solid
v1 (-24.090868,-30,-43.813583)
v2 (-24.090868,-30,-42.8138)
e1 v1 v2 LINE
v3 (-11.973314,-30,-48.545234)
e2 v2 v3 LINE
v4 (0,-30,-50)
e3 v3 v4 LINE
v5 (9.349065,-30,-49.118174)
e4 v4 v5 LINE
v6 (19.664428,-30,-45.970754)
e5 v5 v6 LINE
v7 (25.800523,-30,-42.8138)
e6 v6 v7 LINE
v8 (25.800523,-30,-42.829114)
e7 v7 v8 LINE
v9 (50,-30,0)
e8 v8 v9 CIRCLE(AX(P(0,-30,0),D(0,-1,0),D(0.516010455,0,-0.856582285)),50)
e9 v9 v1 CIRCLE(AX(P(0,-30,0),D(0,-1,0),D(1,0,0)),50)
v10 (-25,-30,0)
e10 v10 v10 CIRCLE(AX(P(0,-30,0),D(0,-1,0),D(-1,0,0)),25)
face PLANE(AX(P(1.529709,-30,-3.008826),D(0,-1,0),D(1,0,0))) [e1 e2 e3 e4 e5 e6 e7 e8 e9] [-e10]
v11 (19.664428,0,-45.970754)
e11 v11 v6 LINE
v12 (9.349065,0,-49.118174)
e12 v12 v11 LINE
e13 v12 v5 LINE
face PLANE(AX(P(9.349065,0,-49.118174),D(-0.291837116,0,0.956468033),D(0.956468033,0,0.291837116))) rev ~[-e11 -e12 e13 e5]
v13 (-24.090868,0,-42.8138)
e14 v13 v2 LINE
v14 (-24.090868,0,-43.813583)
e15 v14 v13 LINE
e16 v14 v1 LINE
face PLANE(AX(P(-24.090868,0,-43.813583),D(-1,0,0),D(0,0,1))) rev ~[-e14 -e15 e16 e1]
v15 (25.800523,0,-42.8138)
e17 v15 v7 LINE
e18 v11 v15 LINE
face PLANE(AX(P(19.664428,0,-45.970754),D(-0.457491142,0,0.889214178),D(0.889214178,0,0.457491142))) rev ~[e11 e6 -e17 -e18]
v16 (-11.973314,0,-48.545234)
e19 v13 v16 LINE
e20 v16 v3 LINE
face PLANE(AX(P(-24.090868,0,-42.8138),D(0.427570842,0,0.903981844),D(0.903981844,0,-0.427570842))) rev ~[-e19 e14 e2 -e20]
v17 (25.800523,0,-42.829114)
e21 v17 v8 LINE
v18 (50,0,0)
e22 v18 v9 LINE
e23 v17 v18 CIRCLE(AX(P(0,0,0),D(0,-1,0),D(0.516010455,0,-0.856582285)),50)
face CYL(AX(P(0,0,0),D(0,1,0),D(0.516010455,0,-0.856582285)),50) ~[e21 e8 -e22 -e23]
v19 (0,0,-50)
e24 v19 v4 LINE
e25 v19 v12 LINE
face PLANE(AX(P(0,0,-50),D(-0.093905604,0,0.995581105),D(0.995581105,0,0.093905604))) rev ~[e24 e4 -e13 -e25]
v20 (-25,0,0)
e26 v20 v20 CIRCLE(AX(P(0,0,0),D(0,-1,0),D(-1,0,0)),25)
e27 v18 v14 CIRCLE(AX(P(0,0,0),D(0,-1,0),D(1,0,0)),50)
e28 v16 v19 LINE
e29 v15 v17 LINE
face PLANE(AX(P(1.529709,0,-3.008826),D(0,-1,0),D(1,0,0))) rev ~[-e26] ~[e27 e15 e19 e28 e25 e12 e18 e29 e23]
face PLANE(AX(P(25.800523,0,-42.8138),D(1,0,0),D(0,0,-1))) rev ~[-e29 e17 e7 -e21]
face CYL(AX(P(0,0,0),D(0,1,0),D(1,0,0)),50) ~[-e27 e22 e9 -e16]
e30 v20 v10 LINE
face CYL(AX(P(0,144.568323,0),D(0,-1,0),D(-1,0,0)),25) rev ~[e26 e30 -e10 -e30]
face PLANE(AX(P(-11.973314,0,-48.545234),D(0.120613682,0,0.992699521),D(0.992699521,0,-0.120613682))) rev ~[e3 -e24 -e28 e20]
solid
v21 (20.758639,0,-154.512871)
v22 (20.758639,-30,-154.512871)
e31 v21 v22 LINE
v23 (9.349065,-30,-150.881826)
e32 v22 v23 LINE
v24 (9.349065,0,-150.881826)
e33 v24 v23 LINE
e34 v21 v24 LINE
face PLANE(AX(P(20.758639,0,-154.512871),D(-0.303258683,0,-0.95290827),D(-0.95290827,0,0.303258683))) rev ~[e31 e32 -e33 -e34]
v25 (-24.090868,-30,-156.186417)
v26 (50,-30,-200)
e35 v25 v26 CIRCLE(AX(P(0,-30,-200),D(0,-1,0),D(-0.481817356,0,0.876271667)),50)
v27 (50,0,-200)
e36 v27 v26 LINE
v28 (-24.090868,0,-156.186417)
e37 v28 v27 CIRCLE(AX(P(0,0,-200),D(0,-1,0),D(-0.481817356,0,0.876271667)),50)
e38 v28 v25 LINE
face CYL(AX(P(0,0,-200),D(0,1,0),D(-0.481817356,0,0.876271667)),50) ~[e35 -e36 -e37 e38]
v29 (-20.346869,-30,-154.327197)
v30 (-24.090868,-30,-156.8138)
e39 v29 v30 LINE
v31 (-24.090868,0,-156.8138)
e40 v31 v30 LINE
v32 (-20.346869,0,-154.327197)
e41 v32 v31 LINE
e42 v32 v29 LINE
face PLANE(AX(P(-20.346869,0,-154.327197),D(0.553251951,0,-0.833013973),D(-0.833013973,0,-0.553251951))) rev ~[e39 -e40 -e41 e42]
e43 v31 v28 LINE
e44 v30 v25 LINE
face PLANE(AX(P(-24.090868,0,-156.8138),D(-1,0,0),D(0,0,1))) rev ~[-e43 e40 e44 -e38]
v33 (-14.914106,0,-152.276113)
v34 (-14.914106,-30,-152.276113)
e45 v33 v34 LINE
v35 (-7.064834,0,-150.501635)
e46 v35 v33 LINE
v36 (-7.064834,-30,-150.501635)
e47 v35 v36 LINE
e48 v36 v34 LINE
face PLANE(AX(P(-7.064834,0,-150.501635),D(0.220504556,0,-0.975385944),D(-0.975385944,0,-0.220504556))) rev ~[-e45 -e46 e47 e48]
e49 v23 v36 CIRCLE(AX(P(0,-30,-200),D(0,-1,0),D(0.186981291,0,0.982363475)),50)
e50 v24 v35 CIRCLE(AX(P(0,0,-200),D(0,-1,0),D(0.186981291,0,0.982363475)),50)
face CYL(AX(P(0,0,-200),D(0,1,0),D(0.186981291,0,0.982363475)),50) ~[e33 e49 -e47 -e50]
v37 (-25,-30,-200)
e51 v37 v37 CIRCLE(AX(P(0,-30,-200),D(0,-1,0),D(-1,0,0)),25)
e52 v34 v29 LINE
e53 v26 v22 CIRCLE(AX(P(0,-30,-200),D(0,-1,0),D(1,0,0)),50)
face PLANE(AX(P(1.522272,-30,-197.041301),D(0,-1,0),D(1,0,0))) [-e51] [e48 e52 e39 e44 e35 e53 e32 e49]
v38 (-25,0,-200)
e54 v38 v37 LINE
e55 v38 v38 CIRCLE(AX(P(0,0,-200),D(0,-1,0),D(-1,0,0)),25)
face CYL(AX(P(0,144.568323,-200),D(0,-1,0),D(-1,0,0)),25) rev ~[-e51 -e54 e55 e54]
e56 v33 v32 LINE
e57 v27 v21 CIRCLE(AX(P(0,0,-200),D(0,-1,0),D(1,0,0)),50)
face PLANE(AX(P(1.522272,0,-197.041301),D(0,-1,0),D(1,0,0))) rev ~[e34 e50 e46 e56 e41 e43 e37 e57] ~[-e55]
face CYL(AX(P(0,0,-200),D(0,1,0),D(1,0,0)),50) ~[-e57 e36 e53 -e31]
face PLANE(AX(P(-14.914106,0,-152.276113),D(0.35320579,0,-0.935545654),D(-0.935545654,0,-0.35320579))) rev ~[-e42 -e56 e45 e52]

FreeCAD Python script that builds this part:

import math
import FreeCAD as App
import Part
import Sketcher
from FreeCAD import Vector
Q = App.Units.Quantity

doc = App.newDocument("Part")
body = doc.addObject("PartDesign::Body", "Body")

# Sketch on XZ plane
sketch1 = body.newObject("Sketcher::SketchObject", "Sketch")
sketch1.AttachmentSupport = (doc.getObject("XZ_Plane"), [""])
sketch1.MapMode = "FlatFace"
sketch1.addGeometry([
    Part.LineSegment(Vector(-24.1, -156.8, 0), Vector(-24.1, -156.2, 0)),  # 0
    Part.ArcOfCircle(Part.Circle(Vector(0, -200, 0), Vector(0, 0, 1), 50), math.radians(119), math.radians(360)),  # 1
    Part.ArcOfCircle(Part.Circle(Vector(0, -200, 0), Vector(0, 0, 1), 50), math.radians(0), math.radians(65)),  # 2
    Part.LineSegment(Vector(20.8, -154.5, 0), Vector(9.3, -150.9, 0)),  # 3
    Part.ArcOfCircle(Part.Circle(Vector(0, -200, 0), Vector(0, 0, 1), 50), math.radians(79.22), math.radians(98.12)),  # 4
    Part.LineSegment(Vector(-7.1, -150.5, 0), Vector(-14.9, -152.3, 0)),  # 5
    Part.LineSegment(Vector(-14.9, -152.3, 0), Vector(-20.3, -154.3, 0)),  # 6
    Part.LineSegment(Vector(-20.3, -154.3, 0), Vector(-24.1, -156.8, 0)),  # 7
], False)
sketch1.addConstraint([
    Sketcher.Constraint("Coincident", 0, 2, 1, 1),
    Sketcher.Constraint("Tangent", 1, 2, 2, 1),
    Sketcher.Constraint("Coincident", 2, 2, 3, 1),
    Sketcher.Constraint("Coincident", 3, 2, 4, 1),
    Sketcher.Constraint("Coincident", 4, 2, 5, 1),
    Sketcher.Constraint("Coincident", 5, 2, 6, 1),
    Sketcher.Constraint("Coincident", 6, 2, 7, 1),
    Sketcher.Constraint("Coincident", 7, 2, 0, 1),
    Sketcher.Constraint("Vertical", 0),
    Sketcher.Constraint("Coincident", 4, 3, 1, 3),
    Sketcher.Constraint("Equal", 1, 2),
    Sketcher.Constraint("Equal", 2, 4),
    Sketcher.Constraint("PointOnObject", 1, 3, -2),
    Sketcher.Constraint("Horizontal", 4, 3, 1, 2),
    Sketcher.Constraint("Radius", 1, Q("50 mm")),
    Sketcher.Constraint("DistanceY", 1, 3, -1, 1, Q("200 mm")),
    Sketcher.Constraint("DistanceX", 0, 2, 6, 2, Q("3.743999 mm")),
    Sketcher.Constraint("DistanceY", 7, 2, -1, 1, Q("156.8138 mm")),
    Sketcher.Constraint("DistanceX", 4, 2, 3, 2, Q("16.413899 mm")),
    Sketcher.Constraint("Distance", 5, Q("8.04735 mm")),
    Sketcher.Constraint("Distance", 7, Q("4.494521 mm")),
    Sketcher.Constraint("DistanceY", 0, 1, 0, 2, Q("0.627383 mm")),
    Sketcher.Constraint("DistanceX", -1, 1, 2, 2, Q("20.758639 mm")),
    Sketcher.Constraint("DistanceY", 0, 2, 3, 2, Q("5.30459 mm")),
    Sketcher.Constraint("DistanceX", 0, 2, 5, 2, Q("9.176762 mm")),
])
pad1 = body.newObject("PartDesign::Pad", "Pad")
pad1.Profile = sketch1
pad1.Length = 30

# Sketch on XZ plane
sketch2 = body.newObject("Sketcher::SketchObject", "Sketch001")
sketch2.AttachmentSupport = (doc.getObject("XZ_Plane"), [""])
sketch2.MapMode = "FlatFace"
sketch2.addGeometry([
    Part.Circle(Vector(0, 0, 0), Vector(0, 0, 1), 25),
    Part.Circle(Vector(0, -200, 0), Vector(0, 0, 1), 25),
], False)
sketch2.addConstraint([
    Sketcher.Constraint("Coincident", 0, 3, -1, 1),
    Sketcher.Constraint("Equal", 0, 1),
    Sketcher.Constraint("PointOnObject", 1, 3, -2),
    Sketcher.Constraint("Diameter", 0, Q("50 mm")),
    Sketcher.Constraint("DistanceY", 1, 3, -1, 1, Q("200 mm")),
])
doc.recompute()
hole = body.newObject("PartDesign::Hole", "Hole")
hole.Profile = sketch2
hole.ThreadType = "None"
hole.Diameter = 50
hole.DepthType = "ThroughAll"
hole.Reversed = True
body2 = doc.addObject("PartDesign::Body", "Body001")

# Sketch on XZ plane
sketch3 = body2.newObject("Sketcher::SketchObject", "Sketch002")
sketch3.AttachmentSupport = (doc.getObject("XZ_Plane001"), [""])
sketch3.MapMode = "FlatFace"
sketch3.addGeometry([
    Part.LineSegment(Vector(-24.091, -42.814, 0), Vector(-11.973, -48.545, 0)),  # 0
    Part.LineSegment(Vector(-11.973, -48.545, 0), Vector(0, -50, 0)),  # 1
    Part.LineSegment(Vector(0, -50, 0), Vector(9.349, -49.118, 0)),  # 2
    Part.LineSegment(Vector(9.349, -49.118, 0), Vector(19.664, -45.971, 0)),  # 3
    Part.LineSegment(Vector(19.664, -45.971, 0), Vector(25.801, -42.814, 0)),  # 4
    Part.LineSegment(Vector(25.801, -42.814, 0), Vector(25.801, -42.829, 0)),  # 5
    Part.ArcOfCircle(Part.Circle(Vector(0, 0, 0), Vector(0, 0, 1), 50), math.radians(-59), math.radians(0)),  # 6
    Part.ArcOfCircle(Part.Circle(Vector(0, 0, 0), Vector(0, 0, 1), 50), math.radians(0), math.radians(241)),  # 7
    Part.LineSegment(Vector(-24.091, -43.814, 0), Vector(-24.091, -42.814, 0)),  # 8
], False)
sketch3.addConstraint([
    Sketcher.Constraint("Coincident", 0, 2, 1, 1),
    Sketcher.Constraint("Coincident", 1, 2, 2, 1),
    Sketcher.Constraint("Coincident", 2, 2, 3, 1),
    Sketcher.Constraint("Coincident", 3, 2, 4, 1),
    Sketcher.Constraint("Coincident", 4, 2, 5, 1),
    Sketcher.Constraint("Coincident", 5, 2, 6, 1),
    Sketcher.Constraint("Tangent", 6, 2, 7, 1),
    Sketcher.Constraint("Coincident", 7, 2, 8, 1),
    Sketcher.Constraint("Coincident", 8, 2, 0, 1),
    Sketcher.Constraint("Vertical", 5),
    Sketcher.Constraint("Vertical", 8),
    Sketcher.Constraint("Coincident", 6, 3, -1, 1),
    Sketcher.Constraint("Equal", 6, 7),
    Sketcher.Constraint("PointOnObject", 1, 2, -2),
    Sketcher.Constraint("PointOnObject", 6, 2, -1),
    Sketcher.Constraint("Horizontal", 4, 2, 8, 2),
    Sketcher.Constraint("Radius", 6, Q("50 mm")),
    Sketcher.Constraint("DistanceY", 1, 2, -1, 1, Q("50 mm")),
    Sketcher.Constraint("DistanceY", 4, 2, -1, 1, Q("42.8138 mm")),
    Sketcher.Constraint("Distance", 1, Q("12.061368 mm")),
    Sketcher.Constraint("Distance", 2, Q("9.39056 mm")),
    Sketcher.Constraint("Distance", 3, Q("10.78485 mm")),
    Sketcher.Constraint("Distance", 4, Q("6.900581 mm")),
    Sketcher.Constraint("DistanceY", 5, 2, 5, 1, Q("0.015315 mm")),
    Sketcher.Constraint("DistanceY", 8, 1, 8, 2, Q("0.999784 mm")),
    Sketcher.Constraint("DistanceX", -1, 1, 3, 2, Q("19.664428 mm")),
    Sketcher.Constraint("DistanceX", 0, 2, 2, 2, Q("21.322379 mm")),
])
pad2 = body2.newObject("PartDesign::Pad", "Pad001")
pad2.Profile = sketch3
pad2.Length = 30

# Sketch on XZ plane
sketch4 = body2.newObject("Sketcher::SketchObject", "Sketch003")
sketch4.AttachmentSupport = (doc.getObject("XZ_Plane001"), [""])
sketch4.MapMode = "FlatFace"
sketch4.addGeometry([
    Part.Circle(Vector(0, 0, 0), Vector(0, 0, 1), 25),
    Part.Circle(Vector(0, -200, 0), Vector(0, 0, 1), 25),
], False)
sketch4.addConstraint([
    Sketcher.Constraint("Coincident", 0, 3, -1, 1),
    Sketcher.Constraint("Equal", 0, 1),
    Sketcher.Constraint("PointOnObject", 1, 3, -2),
    Sketcher.Constraint("Diameter", 0, Q("50 mm")),
    Sketcher.Constraint("DistanceY", 1, 3, -1, 1, Q("200 mm")),
])
doc.recompute()
hole2 = body2.newObject("PartDesign::Hole", "Hole001")
hole2.Profile = sketch4
hole2.ThreadType = "None"
hole2.Diameter = 50
hole2.DepthType = "ThroughAll"
hole2.Reversed = True

doc.recompute()
